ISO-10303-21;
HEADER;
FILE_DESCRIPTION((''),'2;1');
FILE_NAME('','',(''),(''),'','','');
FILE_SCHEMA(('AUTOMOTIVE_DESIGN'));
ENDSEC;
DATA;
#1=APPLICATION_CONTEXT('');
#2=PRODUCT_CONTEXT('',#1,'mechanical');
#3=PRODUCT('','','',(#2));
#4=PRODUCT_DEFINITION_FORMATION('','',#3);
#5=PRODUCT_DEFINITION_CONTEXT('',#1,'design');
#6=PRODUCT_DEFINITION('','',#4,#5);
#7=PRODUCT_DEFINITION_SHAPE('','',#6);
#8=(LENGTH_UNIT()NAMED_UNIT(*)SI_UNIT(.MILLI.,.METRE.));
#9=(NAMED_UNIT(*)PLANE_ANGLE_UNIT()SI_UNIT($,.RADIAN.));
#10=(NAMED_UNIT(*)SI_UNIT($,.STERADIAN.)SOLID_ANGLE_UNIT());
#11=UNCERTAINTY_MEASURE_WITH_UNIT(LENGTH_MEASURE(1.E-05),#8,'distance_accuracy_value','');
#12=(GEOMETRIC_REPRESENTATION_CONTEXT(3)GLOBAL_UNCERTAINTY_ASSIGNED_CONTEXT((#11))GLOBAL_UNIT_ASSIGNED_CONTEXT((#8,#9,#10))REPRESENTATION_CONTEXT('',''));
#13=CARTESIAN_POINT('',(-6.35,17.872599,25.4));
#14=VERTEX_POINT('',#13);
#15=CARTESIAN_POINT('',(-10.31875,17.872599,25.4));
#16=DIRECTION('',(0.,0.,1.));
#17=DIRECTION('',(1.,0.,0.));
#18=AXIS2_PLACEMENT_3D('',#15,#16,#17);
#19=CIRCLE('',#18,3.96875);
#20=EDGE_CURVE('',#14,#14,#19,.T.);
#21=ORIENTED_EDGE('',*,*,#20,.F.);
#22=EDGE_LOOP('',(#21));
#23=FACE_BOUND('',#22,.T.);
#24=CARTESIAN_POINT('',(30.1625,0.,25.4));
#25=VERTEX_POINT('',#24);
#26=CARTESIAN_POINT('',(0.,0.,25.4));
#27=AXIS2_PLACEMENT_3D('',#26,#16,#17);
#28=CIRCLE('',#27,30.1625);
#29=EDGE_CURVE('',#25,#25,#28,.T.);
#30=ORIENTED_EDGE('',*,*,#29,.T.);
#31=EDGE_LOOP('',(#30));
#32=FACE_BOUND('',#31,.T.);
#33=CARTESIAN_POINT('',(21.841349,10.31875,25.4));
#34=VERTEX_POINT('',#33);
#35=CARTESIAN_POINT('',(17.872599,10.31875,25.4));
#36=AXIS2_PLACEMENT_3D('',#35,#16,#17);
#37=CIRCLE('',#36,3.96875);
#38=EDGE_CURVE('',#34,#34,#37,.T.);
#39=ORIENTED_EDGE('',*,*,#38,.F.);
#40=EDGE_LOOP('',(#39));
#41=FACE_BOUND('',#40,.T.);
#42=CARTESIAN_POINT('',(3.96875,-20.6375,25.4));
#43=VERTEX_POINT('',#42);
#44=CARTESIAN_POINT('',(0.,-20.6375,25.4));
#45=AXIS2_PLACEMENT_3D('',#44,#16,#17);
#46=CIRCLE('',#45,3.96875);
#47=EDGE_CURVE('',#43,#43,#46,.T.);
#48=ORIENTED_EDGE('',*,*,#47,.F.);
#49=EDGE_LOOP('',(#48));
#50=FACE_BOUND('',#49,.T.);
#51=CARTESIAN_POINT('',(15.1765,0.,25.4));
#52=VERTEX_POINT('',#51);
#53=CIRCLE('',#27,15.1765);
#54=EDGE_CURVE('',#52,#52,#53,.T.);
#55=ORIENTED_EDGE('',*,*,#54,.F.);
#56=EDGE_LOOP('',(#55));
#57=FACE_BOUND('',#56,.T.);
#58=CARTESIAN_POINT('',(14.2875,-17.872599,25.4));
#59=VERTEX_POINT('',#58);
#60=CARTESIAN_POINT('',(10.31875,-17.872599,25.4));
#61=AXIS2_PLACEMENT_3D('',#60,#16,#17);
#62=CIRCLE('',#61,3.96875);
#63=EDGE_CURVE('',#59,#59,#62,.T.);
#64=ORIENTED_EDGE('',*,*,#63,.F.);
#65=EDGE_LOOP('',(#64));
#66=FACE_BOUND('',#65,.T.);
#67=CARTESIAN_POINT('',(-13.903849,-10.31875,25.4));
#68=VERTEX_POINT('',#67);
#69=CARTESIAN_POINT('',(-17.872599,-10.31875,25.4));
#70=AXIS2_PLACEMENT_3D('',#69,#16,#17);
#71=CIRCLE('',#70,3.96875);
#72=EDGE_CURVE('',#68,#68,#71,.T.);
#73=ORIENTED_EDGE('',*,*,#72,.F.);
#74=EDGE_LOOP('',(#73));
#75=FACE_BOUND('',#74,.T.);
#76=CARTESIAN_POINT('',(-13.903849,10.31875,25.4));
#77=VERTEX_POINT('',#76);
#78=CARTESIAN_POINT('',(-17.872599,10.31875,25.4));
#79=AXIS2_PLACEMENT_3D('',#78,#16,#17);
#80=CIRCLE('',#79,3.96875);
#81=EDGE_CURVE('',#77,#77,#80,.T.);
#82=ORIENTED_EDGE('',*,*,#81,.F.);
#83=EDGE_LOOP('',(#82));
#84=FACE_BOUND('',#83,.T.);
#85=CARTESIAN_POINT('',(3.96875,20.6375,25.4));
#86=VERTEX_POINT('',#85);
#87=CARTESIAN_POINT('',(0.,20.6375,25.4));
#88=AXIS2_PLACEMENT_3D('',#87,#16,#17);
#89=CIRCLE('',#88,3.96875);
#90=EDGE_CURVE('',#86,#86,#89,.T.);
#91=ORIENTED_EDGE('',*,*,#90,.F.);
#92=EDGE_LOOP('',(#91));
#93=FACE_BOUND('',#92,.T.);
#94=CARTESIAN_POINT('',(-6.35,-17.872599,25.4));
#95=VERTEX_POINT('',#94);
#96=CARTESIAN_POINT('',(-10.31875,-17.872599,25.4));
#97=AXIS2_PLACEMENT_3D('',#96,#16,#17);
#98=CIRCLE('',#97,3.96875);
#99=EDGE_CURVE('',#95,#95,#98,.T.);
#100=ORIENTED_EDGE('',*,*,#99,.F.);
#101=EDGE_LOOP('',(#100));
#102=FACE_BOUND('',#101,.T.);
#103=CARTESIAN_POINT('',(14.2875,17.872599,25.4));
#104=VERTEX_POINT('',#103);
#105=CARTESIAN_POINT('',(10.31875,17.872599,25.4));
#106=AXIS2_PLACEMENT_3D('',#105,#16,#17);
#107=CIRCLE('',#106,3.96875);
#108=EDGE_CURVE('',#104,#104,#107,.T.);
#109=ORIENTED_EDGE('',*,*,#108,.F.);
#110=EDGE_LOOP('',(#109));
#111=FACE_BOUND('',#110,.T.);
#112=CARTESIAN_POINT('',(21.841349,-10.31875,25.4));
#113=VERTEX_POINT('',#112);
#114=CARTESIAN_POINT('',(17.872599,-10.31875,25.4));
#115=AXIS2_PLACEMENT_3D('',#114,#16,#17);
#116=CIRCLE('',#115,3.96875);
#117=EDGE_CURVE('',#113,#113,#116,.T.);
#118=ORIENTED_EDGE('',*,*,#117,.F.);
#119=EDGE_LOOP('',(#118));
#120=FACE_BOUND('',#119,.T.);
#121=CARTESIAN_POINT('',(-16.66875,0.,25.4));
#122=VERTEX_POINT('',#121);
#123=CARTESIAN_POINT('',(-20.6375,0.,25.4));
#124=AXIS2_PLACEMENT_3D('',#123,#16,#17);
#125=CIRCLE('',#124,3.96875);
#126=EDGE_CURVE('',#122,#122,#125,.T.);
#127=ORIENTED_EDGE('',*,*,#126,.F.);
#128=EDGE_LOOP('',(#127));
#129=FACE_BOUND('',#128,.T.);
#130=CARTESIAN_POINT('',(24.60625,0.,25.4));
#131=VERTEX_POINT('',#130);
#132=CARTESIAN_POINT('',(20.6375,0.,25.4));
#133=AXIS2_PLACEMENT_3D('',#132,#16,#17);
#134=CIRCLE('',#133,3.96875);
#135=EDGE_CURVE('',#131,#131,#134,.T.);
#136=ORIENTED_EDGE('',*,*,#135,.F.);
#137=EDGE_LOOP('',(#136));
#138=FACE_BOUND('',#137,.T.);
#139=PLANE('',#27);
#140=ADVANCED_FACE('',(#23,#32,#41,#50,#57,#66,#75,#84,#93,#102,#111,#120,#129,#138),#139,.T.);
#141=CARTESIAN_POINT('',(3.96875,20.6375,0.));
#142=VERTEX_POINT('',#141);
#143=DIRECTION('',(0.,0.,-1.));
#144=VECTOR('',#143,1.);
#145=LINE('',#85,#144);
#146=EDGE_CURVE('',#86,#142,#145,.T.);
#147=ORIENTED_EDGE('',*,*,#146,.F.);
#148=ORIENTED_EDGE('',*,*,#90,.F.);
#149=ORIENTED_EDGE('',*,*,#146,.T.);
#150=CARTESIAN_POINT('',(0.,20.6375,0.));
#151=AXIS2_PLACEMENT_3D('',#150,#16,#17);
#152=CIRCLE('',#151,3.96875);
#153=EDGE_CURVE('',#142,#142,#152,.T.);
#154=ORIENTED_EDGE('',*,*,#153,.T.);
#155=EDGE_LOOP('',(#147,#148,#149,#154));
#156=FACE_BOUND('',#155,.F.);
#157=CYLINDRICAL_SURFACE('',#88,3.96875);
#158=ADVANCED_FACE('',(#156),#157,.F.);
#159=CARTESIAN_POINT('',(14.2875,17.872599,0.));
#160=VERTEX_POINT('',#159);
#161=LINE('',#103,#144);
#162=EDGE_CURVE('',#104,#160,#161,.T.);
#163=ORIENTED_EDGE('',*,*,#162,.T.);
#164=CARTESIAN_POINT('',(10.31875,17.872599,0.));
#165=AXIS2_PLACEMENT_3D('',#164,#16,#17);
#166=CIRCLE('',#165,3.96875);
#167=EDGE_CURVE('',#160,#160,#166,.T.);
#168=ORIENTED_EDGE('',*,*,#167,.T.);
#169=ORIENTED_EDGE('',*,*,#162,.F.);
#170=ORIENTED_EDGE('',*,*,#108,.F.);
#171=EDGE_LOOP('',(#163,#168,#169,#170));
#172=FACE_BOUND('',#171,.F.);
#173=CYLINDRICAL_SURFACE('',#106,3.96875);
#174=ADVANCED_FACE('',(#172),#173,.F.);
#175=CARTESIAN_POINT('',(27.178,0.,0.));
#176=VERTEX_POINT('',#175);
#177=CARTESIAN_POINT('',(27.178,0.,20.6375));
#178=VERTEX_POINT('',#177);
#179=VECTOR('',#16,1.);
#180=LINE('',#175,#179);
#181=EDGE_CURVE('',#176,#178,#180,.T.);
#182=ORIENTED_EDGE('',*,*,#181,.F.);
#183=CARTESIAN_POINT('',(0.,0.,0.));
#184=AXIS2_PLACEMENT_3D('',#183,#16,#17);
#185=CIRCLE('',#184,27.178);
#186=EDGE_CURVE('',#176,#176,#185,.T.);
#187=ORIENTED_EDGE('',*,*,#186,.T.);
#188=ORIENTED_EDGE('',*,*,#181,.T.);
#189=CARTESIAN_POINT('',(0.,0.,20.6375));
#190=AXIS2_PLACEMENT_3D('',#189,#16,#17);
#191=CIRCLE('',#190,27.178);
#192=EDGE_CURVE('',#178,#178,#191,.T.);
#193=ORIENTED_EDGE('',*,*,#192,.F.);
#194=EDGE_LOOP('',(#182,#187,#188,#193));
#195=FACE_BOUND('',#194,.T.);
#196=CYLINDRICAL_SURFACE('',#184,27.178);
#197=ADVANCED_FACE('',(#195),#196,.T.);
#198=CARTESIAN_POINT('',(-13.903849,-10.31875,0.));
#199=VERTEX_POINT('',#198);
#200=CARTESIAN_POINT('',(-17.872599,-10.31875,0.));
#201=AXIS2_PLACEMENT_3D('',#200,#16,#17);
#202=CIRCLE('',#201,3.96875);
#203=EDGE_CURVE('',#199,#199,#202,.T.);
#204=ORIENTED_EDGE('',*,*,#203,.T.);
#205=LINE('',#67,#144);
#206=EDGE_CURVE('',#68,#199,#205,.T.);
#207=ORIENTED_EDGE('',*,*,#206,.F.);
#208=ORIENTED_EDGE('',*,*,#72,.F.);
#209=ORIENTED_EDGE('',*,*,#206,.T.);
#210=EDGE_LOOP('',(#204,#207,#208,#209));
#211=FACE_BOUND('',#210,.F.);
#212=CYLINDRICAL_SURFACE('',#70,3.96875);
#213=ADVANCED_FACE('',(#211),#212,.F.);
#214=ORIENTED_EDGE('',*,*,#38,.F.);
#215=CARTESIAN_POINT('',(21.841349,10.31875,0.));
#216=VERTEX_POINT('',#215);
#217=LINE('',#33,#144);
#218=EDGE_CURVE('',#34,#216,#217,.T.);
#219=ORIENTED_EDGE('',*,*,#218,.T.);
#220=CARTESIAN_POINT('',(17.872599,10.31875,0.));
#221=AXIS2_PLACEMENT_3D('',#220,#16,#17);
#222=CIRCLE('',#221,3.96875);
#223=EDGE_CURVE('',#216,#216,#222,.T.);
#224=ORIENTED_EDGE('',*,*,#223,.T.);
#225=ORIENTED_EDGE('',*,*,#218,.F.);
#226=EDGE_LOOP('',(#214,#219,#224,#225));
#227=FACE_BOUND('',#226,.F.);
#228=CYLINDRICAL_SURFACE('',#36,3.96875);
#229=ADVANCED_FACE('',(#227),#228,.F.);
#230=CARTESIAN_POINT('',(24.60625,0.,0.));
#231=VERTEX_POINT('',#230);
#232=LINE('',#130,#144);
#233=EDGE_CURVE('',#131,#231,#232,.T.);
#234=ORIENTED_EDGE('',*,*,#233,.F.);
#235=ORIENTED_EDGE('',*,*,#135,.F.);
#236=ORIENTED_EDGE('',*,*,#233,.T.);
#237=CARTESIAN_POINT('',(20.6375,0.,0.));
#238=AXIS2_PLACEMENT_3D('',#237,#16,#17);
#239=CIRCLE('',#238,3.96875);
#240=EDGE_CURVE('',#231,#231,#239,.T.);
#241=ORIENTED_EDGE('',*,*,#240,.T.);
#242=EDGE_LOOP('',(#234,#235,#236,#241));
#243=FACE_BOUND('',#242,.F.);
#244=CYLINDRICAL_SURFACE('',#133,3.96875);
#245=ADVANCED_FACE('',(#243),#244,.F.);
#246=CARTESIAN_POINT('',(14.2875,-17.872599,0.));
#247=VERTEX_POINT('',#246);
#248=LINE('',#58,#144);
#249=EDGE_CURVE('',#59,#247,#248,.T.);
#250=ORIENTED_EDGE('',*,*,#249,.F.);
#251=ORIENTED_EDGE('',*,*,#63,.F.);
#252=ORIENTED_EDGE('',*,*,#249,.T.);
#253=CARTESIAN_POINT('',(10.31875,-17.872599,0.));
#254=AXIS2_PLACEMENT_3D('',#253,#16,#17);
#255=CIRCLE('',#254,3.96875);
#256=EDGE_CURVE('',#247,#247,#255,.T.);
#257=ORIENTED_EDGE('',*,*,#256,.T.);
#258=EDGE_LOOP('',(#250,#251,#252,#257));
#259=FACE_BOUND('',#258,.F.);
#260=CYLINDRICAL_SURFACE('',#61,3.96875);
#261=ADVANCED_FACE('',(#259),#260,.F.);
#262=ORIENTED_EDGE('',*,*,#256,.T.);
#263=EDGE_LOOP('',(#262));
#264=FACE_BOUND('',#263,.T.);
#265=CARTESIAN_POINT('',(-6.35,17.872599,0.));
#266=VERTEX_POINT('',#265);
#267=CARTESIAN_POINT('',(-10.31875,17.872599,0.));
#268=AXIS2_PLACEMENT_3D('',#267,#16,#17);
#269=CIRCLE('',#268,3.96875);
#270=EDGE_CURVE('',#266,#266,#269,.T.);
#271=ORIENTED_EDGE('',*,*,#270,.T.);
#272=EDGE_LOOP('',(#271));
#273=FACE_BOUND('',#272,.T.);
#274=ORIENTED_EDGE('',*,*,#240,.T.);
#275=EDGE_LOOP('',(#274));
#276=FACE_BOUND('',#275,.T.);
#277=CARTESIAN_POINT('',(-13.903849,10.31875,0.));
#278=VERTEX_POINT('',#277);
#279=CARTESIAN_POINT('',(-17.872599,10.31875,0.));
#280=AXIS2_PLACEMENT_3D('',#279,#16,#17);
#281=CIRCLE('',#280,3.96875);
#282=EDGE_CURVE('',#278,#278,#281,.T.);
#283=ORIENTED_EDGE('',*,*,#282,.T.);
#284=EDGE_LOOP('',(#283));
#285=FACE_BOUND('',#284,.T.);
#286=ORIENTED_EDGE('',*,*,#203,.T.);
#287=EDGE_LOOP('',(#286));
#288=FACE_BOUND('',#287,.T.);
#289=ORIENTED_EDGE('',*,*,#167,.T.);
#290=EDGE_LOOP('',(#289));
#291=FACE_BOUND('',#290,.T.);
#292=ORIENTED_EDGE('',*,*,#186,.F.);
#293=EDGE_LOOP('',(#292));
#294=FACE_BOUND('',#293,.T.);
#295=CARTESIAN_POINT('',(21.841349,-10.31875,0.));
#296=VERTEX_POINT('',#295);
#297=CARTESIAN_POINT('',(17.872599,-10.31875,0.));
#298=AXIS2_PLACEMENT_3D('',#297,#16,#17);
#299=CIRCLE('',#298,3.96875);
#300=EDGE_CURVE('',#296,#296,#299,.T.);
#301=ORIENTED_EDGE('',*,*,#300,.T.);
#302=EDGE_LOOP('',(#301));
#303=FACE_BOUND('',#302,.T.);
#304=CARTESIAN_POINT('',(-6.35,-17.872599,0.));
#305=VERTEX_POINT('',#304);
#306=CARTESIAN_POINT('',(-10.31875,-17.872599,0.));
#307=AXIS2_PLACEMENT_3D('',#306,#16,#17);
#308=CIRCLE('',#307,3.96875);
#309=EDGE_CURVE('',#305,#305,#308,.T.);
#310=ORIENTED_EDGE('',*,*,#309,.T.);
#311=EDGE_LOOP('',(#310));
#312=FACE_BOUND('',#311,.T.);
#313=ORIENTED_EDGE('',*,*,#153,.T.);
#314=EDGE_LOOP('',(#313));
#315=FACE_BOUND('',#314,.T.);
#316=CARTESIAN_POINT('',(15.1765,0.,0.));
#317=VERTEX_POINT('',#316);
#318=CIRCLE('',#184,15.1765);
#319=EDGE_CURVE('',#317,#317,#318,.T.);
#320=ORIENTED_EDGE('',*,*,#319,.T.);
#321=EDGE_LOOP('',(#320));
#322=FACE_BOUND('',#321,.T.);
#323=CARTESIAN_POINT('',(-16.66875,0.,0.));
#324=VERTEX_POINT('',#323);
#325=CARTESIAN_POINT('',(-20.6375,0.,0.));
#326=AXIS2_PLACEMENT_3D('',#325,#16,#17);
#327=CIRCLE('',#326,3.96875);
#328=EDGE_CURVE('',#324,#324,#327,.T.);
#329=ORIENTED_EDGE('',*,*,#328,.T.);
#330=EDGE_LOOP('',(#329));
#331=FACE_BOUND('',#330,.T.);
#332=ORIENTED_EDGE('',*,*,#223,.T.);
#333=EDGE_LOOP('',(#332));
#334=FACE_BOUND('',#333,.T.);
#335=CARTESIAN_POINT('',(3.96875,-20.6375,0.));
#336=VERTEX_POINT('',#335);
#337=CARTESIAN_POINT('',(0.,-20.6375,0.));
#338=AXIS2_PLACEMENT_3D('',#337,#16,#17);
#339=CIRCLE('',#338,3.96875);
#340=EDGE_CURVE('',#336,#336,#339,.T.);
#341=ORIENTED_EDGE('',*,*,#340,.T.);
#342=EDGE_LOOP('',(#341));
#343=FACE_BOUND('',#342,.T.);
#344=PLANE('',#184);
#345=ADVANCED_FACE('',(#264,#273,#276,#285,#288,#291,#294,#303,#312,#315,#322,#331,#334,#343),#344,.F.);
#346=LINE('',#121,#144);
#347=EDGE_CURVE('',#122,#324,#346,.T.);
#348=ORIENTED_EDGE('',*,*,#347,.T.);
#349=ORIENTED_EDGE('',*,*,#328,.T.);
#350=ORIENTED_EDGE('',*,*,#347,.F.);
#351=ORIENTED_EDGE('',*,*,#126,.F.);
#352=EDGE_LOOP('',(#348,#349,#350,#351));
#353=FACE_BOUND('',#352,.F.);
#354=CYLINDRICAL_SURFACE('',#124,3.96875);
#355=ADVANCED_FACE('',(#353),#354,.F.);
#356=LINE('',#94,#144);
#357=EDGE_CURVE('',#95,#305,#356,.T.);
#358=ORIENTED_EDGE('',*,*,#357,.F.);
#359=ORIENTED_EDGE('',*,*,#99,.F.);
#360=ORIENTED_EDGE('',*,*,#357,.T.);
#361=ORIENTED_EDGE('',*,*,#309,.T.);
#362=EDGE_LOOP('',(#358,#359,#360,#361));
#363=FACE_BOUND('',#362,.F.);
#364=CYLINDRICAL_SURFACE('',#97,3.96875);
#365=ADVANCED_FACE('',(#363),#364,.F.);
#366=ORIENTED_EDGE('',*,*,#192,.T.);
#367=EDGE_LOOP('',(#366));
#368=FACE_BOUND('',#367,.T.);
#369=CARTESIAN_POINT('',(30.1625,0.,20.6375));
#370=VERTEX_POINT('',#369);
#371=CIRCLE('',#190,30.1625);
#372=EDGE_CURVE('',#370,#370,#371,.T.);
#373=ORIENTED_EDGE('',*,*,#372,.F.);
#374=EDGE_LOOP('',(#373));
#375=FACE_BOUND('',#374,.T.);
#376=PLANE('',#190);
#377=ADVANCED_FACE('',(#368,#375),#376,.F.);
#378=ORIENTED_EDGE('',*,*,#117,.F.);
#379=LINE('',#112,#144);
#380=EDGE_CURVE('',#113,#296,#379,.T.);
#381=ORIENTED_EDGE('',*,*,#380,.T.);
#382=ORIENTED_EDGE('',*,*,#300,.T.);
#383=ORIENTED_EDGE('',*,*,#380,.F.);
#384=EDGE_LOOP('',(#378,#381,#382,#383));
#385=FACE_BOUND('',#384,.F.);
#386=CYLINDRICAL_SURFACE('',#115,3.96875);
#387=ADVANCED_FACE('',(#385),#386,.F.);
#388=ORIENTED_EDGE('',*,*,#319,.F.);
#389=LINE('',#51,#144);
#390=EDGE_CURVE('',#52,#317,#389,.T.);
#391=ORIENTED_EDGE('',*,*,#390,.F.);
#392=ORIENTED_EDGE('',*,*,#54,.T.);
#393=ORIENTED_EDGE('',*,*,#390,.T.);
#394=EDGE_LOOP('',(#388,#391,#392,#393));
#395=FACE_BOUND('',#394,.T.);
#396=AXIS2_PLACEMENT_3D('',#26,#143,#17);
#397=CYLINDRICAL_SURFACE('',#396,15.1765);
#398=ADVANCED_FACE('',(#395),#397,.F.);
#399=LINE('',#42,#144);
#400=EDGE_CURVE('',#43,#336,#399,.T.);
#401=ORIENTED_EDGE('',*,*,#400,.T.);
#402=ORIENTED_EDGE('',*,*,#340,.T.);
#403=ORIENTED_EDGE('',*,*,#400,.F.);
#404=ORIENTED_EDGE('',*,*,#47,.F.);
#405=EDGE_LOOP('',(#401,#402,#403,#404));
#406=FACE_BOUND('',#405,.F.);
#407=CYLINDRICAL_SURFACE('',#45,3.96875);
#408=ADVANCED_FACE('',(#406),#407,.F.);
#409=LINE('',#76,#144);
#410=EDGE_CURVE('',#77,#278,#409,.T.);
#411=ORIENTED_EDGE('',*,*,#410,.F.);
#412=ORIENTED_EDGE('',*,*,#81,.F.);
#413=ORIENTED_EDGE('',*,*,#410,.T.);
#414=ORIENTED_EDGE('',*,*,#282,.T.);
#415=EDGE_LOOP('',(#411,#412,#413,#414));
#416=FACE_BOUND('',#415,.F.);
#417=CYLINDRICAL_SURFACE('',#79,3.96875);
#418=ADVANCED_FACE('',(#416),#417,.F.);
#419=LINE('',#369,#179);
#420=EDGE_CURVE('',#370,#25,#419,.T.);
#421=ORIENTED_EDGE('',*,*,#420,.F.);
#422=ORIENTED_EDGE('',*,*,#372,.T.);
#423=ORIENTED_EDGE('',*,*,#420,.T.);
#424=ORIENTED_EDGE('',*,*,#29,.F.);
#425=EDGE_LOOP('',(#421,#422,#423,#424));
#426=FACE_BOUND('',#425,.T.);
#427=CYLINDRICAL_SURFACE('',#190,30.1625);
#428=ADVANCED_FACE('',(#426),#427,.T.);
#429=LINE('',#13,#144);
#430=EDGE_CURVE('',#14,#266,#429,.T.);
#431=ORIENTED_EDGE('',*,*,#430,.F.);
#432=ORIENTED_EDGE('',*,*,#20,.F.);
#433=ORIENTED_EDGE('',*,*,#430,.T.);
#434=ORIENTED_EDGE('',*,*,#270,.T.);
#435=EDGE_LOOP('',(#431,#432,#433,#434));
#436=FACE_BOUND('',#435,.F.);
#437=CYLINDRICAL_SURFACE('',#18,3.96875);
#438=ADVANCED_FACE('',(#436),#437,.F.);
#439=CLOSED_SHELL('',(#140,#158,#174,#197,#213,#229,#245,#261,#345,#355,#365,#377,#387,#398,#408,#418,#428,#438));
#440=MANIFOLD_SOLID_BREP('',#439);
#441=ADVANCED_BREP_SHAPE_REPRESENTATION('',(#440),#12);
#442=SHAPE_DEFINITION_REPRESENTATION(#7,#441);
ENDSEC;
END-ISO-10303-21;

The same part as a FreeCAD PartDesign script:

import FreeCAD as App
import Part
import Sketcher
Q = App.Units.Quantity


def add_polygon(sketch, points):
    """Adds a closed chain of lines whose ends are joined by coincident constraints."""
    first, n = sketch.GeometryCount, len(points)
    for a, b in zip(points, points[1:] + points[:1]):
        sketch.addGeometry(Part.LineSegment(App.Vector(*a, 0), App.Vector(*b, 0)), False)
    for i in range(n):
        sketch.addConstraint(Sketcher.Constraint("Coincident", first + i, 2, first + (i + 1) % n, 1))

doc = App.newDocument("Part")
body = doc.addObject("PartDesign::Body", "Body")

# Sketch on XZ plane
sketch1 = body.newObject("Sketcher::SketchObject", "Sketch")
sketch1.AttachmentSupport = (doc.getObject("XZ_Plane"), [""])
sketch1.MapMode = "FlatFace"
add_polygon(sketch1, [(15.2, 25.4), (15.2, 0), (27.2, 0), (27.2, 20.6), (30.2, 20.6), (30.2, 25.4)])  # lines 0-5
sketch1.addConstraint([
    Sketcher.Constraint("Vertical", 0),
    Sketcher.Constraint("Horizontal", 1),
    Sketcher.Constraint("Vertical", 2),
    Sketcher.Constraint("Horizontal", 3),
    Sketcher.Constraint("Vertical", 4),
    Sketcher.Constraint("Horizontal", 5),
    Sketcher.Constraint("PointOnObject", 0, 2, -1),
    Sketcher.Constraint("DistanceY", 0, 2, 0, 1, Q("1 in")),
    Sketcher.Constraint("DistanceX", 5, 2, 5, 1, Q("0.59 in")),
    Sketcher.Constraint("DistanceY", 2, 1, 2, 2, Q("0.8125 in")),
    Sketcher.Constraint("DistanceX", -1, 1, 1, 2, Q("1.07 in")),
    Sketcher.Constraint("DistanceX", 1, 1, 1, 2, Q("0.4725 in")),
])
revolution = body.newObject("PartDesign::Revolution", "Revolution")
revolution.Profile = sketch1
revolution.ReferenceAxis = (sketch1, ["V_Axis"])
revolution.Angle = 360

# Sketch on XY plane
sketch2 = body.newObject("Sketcher::SketchObject", "Sketch001")
sketch2.AttachmentSupport = (doc.getObject("XY_Plane"), [""])
sketch2.MapMode = "FlatFace"
sketch2.AttachmentOffset = App.Placement(App.Vector(0, 0, 1 * 25.4), App.Rotation())
sketch2.addGeometry([
    Part.Circle(App.Vector(0, -20.6, 0), App.Vector(0, 0, 1), 4),  # 0
    Part.Circle(App.Vector(10.3, 17.9, 0), App.Vector(0, 0, 1), 4),  # 1
    Part.Circle(App.Vector(17.9, 10.3, 0), App.Vector(0, 0, 1), 4),  # 2
    Part.Circle(App.Vector(20.6, 0, 0), App.Vector(0, 0, 1), 4),  # 3
    Part.Circle(App.Vector(17.9, -10.3, 0), App.Vector(0, 0, 1), 4),  # 4
    Part.Circle(App.Vector(10.3, -17.9, 0), App.Vector(0, 0, 1), 4),  # 5
    Part.Circle(App.Vector(-10.3, -17.9, 0), App.Vector(0, 0, 1), 4),  # 6
    Part.Circle(App.Vector(-17.9, -10.3, 0), App.Vector(0, 0, 1), 4),  # 7
    Part.Circle(App.Vector(-20.6, 0, 0), App.Vector(0, 0, 1), 4),  # 8
    Part.Circle(App.Vector(-17.9, 10.3, 0), App.Vector(0, 0, 1), 4),  # 9
    Part.Circle(App.Vector(-10.3, 17.9, 0), App.Vector(0, 0, 1), 4),  # 10
    Part.Circle(App.Vector(0, 20.6, 0), App.Vector(0, 0, 1), 4),  # 11
], False)
sketch2.addConstraint([
    Sketcher.Constraint("Equal", 0, 1),
    Sketcher.Constraint("Equal", 1, 2),
    Sketcher.Constraint("Equal", 2, 3),
    Sketcher.Constraint("Equal", 3, 4),
    Sketcher.Constraint("Equal", 4, 5),
    Sketcher.Constraint("Equal", 5, 6),
    Sketcher.Constraint("Equal", 6, 7),
    Sketcher.Constraint("Equal", 7, 8),
    Sketcher.Constraint("Equal", 8, 9),
    Sketcher.Constraint("Equal", 9, 10),
    Sketcher.Constraint("Equal", 10, 11),
    Sketcher.Constraint("Symmetric", 1, 3, 6, 3, -1, 1),
    Sketcher.Constraint("Symmetric", 2, 3, 7, 3, -1, 1),
    Sketcher.Constraint("Symmetric", 3, 3, 8, 3, -1, 1),
    Sketcher.Constraint("Symmetric", 4, 3, 9, 3, -1, 1),
    Sketcher.Constraint("Symmetric", 5, 3, 10, 3, -1, 1),
    Sketcher.Constraint("Symmetric", 0, 3, 11, 3, -1, 1),
    Sketcher.Constraint("Symmetric", 5, 3, 6, 3, -2),
    Sketcher.Constraint("Symmetric", 4, 3, 7, 3, -2),
    Sketcher.Constraint("PointOnObject", 0, 3, -2),
    Sketcher.Constraint("PointOnObject", 3, 3, -1),
    Sketcher.Constraint("Diameter", 0, Q("0.3125 in")),
    Sketcher.Constraint("DistanceY", 0, 3, -1, 1, Q("0.8125 in")),
    Sketcher.Constraint("DistanceX", -1, 1, 1, 3, Q("0.40625 in")),
    Sketcher.Constraint("DistanceY", -1, 1, 2, 3, Q("0.40625 in")),
    Sketcher.Constraint("DistanceX", -1, 1, 3, 3, Q("0.8125 in")),
    Sketcher.Constraint("DistanceY", -1, 1, 1, 3, Q("17.872599 mm")),
    Sketcher.Constraint("DistanceX", -1, 1, 2, 3, Q("17.872599 mm")),
])
pocket1 = body.newObject("PartDesign::Pocket", "Pocket")
pocket1.Profile = sketch2
pocket1.Type = "ThroughAll"

doc.recompute()
